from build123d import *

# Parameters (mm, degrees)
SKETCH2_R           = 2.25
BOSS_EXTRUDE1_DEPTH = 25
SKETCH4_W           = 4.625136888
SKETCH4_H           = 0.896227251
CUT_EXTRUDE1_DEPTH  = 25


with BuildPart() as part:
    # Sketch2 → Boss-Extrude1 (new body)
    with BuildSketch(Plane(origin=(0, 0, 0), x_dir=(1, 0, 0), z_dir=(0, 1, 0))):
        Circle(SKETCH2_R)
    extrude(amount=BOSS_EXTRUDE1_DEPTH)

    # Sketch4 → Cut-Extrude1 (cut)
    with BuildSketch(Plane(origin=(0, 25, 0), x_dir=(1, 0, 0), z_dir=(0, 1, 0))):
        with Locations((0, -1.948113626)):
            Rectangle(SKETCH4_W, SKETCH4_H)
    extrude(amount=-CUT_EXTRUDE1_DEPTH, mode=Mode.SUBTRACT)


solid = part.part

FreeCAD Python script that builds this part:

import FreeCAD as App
import Part
import Sketcher
from FreeCAD import Vector


def add_polygon(sketch, points):
    """Adds a closed chain of lines whose ends are joined by coincident constraints."""
    first, n = sketch.GeometryCount, len(points)
    for a, b in zip(points, points[1:] + points[:1]):
        sketch.addGeometry(Part.LineSegment(App.Vector(*a, 0), App.Vector(*b, 0)), False)
    for i in range(n):
        sketch.addConstraint(Sketcher.Constraint("Coincident", first + i, 2, first + (i + 1) % n, 1))

doc = App.newDocument("Part")
body = doc.addObject("PartDesign::Body", "Body")

# Sketch on XZ plane
sketch1 = doc.addObject("Sketcher::SketchObject", "Sketch")
body.addObject(sketch1)
sketch1.AttachmentSupport = (doc.XZ_Plane, [""])
sketch1.MapMode = "FlatFace"
sketch1.addGeometry(Part.Circle(Vector(0, 0, 0), Vector(0, 0, 1), 2.2), False)
sketch1.addConstraint([
    Sketcher.Constraint("Coincident", 0, 3, -1, 1),
    Sketcher.Constraint("Diameter", 0, 4.5),
])
pad1 = doc.addObject("PartDesign::Pad", "Pad")
body.addObject(pad1)
pad1.Profile = sketch1
pad1.Length = 25
pad1.Reversed = True

# Sketch on XZ plane
sketch2 = doc.addObject("Sketcher::SketchObject", "Sketch001")
body.addObject(sketch2)
sketch2.AttachmentSupport = (doc.XZ_Plane, [""])
sketch2.MapMode = "FlatFace"
sketch2.AttachmentOffset = App.Placement(Vector(0, 0, -25), App.Rotation())
add_polygon(sketch2, [(-2.3, 1.5), (-2.3, 2.4), (2.3, 2.4), (2.3, 1.5)])  # lines 0-3
sketch2.addConstraint([
    Sketcher.Constraint("Vertical", 0),
    Sketcher.Constraint("Horizontal", 1),
    Sketcher.Constraint("Vertical", 2),
    Sketcher.Constraint("Horizontal", 3),
    Sketcher.Constraint("DistanceY", -1, 1, 2, 2, 1.5),
    Sketcher.Constraint("DistanceX", 1, 1, 1, 2, 4.625137),
    Sketcher.Constraint("DistanceY", 0, 1, 0, 2, 0.896227),
    Sketcher.Constraint("DistanceX", 0, 2, -1, 1, 2.312568),
])
pocket1 = doc.addObject("PartDesign::Pocket", "Pocket")
body.addObject(pocket1)
pocket1.Profile = sketch2
pocket1.Length = 25
pocket1.Reversed = True

doc.recompute()
